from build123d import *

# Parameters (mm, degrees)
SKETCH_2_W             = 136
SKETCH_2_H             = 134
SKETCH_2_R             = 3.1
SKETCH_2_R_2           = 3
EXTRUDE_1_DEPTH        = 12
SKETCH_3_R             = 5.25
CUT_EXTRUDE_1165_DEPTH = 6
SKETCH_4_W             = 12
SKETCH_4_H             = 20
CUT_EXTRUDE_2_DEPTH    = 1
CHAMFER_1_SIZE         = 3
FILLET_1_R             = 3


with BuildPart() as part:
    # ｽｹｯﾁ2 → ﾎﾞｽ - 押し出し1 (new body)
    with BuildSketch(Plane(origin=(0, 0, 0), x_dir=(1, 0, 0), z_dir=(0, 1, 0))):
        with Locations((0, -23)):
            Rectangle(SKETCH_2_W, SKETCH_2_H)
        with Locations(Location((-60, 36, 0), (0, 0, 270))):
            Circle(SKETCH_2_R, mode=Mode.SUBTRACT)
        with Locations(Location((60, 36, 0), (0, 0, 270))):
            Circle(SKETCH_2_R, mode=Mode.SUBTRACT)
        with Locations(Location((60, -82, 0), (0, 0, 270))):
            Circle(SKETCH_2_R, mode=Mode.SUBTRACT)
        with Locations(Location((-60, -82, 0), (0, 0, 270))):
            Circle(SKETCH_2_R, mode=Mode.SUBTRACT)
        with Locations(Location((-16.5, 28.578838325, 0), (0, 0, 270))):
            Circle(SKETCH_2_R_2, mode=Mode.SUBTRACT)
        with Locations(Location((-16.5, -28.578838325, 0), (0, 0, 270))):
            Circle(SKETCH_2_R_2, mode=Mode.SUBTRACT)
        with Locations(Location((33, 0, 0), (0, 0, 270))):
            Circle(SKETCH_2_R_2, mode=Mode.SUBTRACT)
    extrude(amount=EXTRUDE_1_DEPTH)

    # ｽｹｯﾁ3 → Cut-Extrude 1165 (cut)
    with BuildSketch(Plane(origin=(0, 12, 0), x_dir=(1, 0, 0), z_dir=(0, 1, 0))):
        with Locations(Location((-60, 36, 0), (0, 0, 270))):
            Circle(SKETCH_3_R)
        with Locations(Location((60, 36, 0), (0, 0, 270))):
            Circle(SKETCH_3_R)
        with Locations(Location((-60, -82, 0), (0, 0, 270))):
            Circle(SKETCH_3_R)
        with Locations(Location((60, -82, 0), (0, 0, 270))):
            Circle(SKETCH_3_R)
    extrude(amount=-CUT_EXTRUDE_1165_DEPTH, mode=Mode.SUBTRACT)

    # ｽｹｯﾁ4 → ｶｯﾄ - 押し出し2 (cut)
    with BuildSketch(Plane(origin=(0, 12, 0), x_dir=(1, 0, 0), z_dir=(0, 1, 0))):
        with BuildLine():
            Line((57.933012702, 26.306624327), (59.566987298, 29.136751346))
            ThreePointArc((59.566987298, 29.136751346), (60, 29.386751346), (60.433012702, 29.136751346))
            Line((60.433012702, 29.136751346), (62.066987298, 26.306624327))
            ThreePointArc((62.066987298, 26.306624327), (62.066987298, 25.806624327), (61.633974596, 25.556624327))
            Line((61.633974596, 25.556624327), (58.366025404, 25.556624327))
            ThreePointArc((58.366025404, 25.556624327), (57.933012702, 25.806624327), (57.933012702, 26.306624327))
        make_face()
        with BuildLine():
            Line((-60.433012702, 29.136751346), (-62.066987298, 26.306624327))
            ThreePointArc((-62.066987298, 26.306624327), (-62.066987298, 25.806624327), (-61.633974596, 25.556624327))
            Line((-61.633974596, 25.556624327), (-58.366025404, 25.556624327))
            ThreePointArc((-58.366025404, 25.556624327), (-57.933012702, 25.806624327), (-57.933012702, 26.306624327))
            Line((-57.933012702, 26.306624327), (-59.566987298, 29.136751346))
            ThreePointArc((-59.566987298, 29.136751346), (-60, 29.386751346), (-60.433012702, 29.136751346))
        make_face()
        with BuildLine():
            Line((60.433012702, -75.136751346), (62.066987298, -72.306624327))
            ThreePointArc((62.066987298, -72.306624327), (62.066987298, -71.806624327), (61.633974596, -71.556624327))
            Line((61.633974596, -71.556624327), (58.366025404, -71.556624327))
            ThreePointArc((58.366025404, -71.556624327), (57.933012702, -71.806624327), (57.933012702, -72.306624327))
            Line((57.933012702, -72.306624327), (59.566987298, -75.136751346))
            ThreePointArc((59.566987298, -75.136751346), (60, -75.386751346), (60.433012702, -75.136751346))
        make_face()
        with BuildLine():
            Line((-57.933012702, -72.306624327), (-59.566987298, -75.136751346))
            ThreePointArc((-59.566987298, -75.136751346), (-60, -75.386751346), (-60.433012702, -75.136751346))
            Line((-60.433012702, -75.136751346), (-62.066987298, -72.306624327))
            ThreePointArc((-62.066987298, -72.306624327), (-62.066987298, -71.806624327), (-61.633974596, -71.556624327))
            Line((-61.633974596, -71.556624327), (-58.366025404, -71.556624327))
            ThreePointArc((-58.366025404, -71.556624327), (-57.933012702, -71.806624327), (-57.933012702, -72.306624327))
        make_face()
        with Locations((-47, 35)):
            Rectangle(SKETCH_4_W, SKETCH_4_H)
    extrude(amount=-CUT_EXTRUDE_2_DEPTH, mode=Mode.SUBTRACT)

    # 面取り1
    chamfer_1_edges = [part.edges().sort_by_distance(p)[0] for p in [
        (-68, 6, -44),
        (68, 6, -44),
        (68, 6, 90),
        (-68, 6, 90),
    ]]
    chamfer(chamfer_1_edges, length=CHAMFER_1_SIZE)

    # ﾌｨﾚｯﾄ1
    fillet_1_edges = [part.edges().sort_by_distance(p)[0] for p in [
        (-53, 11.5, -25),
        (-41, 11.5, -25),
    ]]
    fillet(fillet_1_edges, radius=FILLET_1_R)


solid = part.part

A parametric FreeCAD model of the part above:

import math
import FreeCAD as App
import Part
import Sketcher
Q = App.Units.Quantity


def edges_at(feature, points):
    """Names of the edges that pass closest to the given points."""
    edges = feature.Shape.Edges
    near = lambda p: min(range(len(edges)), key=lambda i: edges[i].distToShape(Part.Vertex(*p))[0])
    return sorted({f"Edge{near(p) + 1}" for p in points})


def add_polygon(sketch, points):
    """Adds a closed chain of lines whose ends are joined by coincident constraints."""
    first, n = sketch.GeometryCount, len(points)
    for a, b in zip(points, points[1:] + points[:1]):
        sketch.addGeometry(Part.LineSegment(App.Vector(*a, 0), App.Vector(*b, 0)), False)
    for i in range(n):
        sketch.addConstraint(Sketcher.Constraint("Coincident", first + i, 2, first + (i + 1) % n, 1))

doc = App.newDocument("Part")
params = doc.addObject("Spreadsheet::Sheet", "Params")
for row, (alias, value) in enumerate([
    ("sketch1_diameter", "6 mm"),
    ("sketch1_diameter2", "6.2 mm"),
    ("sketch1_width", "136 mm"),
    ("sketch1_height", "134 mm"),
    ("pad1_length", "12 mm"),
    ("sketch2_diameter", "10.5 mm"),
    ("pocket1_length", "6 mm"),
    ("sketch3_radius", "0.5 mm"),
    ("sketch3_width", "12 mm"),
    ("sketch3_height", "20 mm"),
    ("pocket2_length", "1 mm"),
    ("chamfer_size", "3 mm"),
    ("fillet_radius", "3 mm"),
], start=1):
    params.set(f"A{row}", alias)
    params.set(f"B{row}", "=" + value)
    params.setAlias(f"B{row}", alias)

body = doc.addObject("PartDesign::Body", "Body")

# Sketch on XZ plane
sketch1 = body.newObject("Sketcher::SketchObject", "Sketch")
sketch1.AttachmentSupport = (doc.getObject("XZ_Plane"), [""])
sketch1.MapMode = "FlatFace"
add_polygon(sketch1, [(-68, -44), (-68, 90), (68, 90), (68, -44)])  # lines 0-3
sketch1.addGeometry(Part.Circle(App.Vector(-60, 82, 0), App.Vector(0, 0, 1), 3.1), False)  # 4
sketch1.addGeometry(Part.Circle(App.Vector(-16.5, 28.6, 0), App.Vector(0, 0, 1), 3), False)  # 5
sketch1.addGeometry(Part.Circle(App.Vector(60, 82, 0), App.Vector(0, 0, 1), 3.1), False)  # 6
sketch1.addGeometry(Part.Circle(App.Vector(-60, -36, 0), App.Vector(0, 0, 1), 3.1), False)  # 7
sketch1.addGeometry(Part.Circle(App.Vector(-16.5, -28.6, 0), App.Vector(0, 0, 1), 3), False)  # 8
sketch1.addGeometry(Part.Circle(App.Vector(33, 0, 0), App.Vector(0, 0, 1), 3), False)  # 9
sketch1.addGeometry(Part.Circle(App.Vector(60, -36, 0), App.Vector(0, 0, 1), 3.1), False)  # 10
sketch1.addConstraint(Sketcher.Constraint("Vertical", 0))
sketch1.addConstraint(Sketcher.Constraint("Horizontal", 1))
sketch1.addConstraint(Sketcher.Constraint("Vertical", 2))
sketch1.addConstraint(Sketcher.Constraint("Horizontal", 3))
sketch1.addConstraint(Sketcher.Constraint("Equal", 4, 6))
sketch1.addConstraint(Sketcher.Constraint("Equal", 6, 7))
sketch1.addConstraint(Sketcher.Constraint("Equal", 5, 8))
sketch1.addConstraint(Sketcher.Constraint("Equal", 8, 9))
sketch1.addConstraint(Sketcher.Constraint("Equal", 7, 10))
sketch1.addConstraint(Sketcher.Constraint("Symmetric", 4, 3, 6, 3, -2))
sketch1.addConstraint(Sketcher.Constraint("Symmetric", 7, 3, 10, 3, -2))
sketch1.addConstraint(Sketcher.Constraint("Symmetric", 5, 3, 8, 3, -1))
sketch1.addConstraint(Sketcher.Constraint("PointOnObject", 9, 3, -1))
sketch1.addConstraint(Sketcher.Constraint("Vertical", 4, 3, 7, 3))
sketch1.addConstraint(Sketcher.Constraint("Diameter", 5, Q("6 mm")))
sketch1.addConstraint(Sketcher.Constraint("Diameter", 4, Q("6.2 mm")))
sketch1.addConstraint(Sketcher.Constraint("DistanceX", 1, 1, 1, 2, Q("136 mm")))
sketch1.addConstraint(Sketcher.Constraint("DistanceY", 0, 1, 0, 2, Q("134 mm")))
sketch1.addConstraint(Sketcher.Constraint("DistanceX", 4, 3, -1, 1, Q("60 mm")))
sketch1.addConstraint(Sketcher.Constraint("DistanceY", -1, 1, 4, 3, Q("82 mm")))
sketch1.addConstraint(Sketcher.Constraint("DistanceY", 7, 3, -1, 1, Q("36 mm")))
sketch1.addConstraint(Sketcher.Constraint("DistanceX", -1, 1, 9, 3, Q("33 mm")))
sketch1.addConstraint(Sketcher.Constraint("DistanceX", 0, 2, -1, 1, Q("68 mm")))
sketch1.addConstraint(Sketcher.Constraint("DistanceY", -1, 1, 0, 2, Q("90 mm")))
sketch1.addConstraint(Sketcher.Constraint("DistanceX", 5, 3, -1, 1, Q("16.5 mm")))
sketch1.addConstraint(Sketcher.Constraint("DistanceY", -1, 1, 5, 3, Q("28.578838 mm")))
sketch1.setExpression("Constraints[18]", "Params.sketch1_diameter")
sketch1.setExpression("Constraints[19]", "Params.sketch1_diameter2")
sketch1.setExpression("Constraints[20]", "Params.sketch1_width")
sketch1.setExpression("Constraints[21]", "Params.sketch1_height")
pad1 = body.newObject("PartDesign::Pad", "Pad")
pad1.Profile = sketch1
pad1.setExpression("Length", "Params.pad1_length")
pad1.Reversed = True

# Sketch on XZ plane
sketch2 = body.newObject("Sketcher::SketchObject", "Sketch001")
sketch2.AttachmentSupport = (doc.getObject("XZ_Plane"), [""])
sketch2.MapMode = "FlatFace"
sketch2.AttachmentOffset = App.Placement(App.Vector(0, 0, -12), App.Rotation())
sketch2.addGeometry(Part.Circle(App.Vector(-60, -36, 0), App.Vector(0, 0, 1), 5), False)
sketch2.addGeometry(Part.Circle(App.Vector(60, -36, 0), App.Vector(0, 0, 1), 5), False)
sketch2.addGeometry(Part.Circle(App.Vector(-60, 82, 0), App.Vector(0, 0, 1), 5), False)
sketch2.addGeometry(Part.Circle(App.Vector(60, 82, 0), App.Vector(0, 0, 1), 5), False)
sketch2.addConstraint(Sketcher.Constraint("Equal", 0, 1))
sketch2.addConstraint(Sketcher.Constraint("Equal", 1, 2))
sketch2.addConstraint(Sketcher.Constraint("Equal", 2, 3))
sketch2.addConstraint(Sketcher.Constraint("Symmetric", 0, 3, 1, 3, -2))
sketch2.addConstraint(Sketcher.Constraint("Symmetric", 2, 3, 3, 3, -2))
sketch2.addConstraint(Sketcher.Constraint("Vertical", 0, 3, 2, 3))
sketch2.addConstraint(Sketcher.Constraint("Diameter", 0, Q("10.5 mm")))
sketch2.addConstraint(Sketcher.Constraint("DistanceX", 0, 3, -1, 1, Q("60 mm")))
sketch2.addConstraint(Sketcher.Constraint("DistanceY", 0, 3, -1, 1, Q("36 mm")))
sketch2.addConstraint(Sketcher.Constraint("DistanceY", -1, 1, 2, 3, Q("82 mm")))
sketch2.setExpression("Constraints[6]", "Params.sketch2_diameter")
pocket1 = body.newObject("PartDesign::Pocket", "Pocket")
pocket1.Profile = sketch2
pocket1.setExpression("Length", "Params.pocket1_length")
pocket1.Reversed = True

# Sketch on XZ plane
sketch3 = body.newObject("Sketcher::SketchObject", "Sketch002")
sketch3.AttachmentSupport = (doc.getObject("XZ_Plane"), [""])
sketch3.MapMode = "FlatFace"
sketch3.AttachmentOffset = App.Placement(App.Vector(0, 0, -12), App.Rotation())
sketch3.addGeometry(Part.LineSegment(App.Vector(59.6, -29.1, 0), App.Vector(57.9, -26.3, 0)), False)  # 0
sketch3.addGeometry(Part.ArcOfCircle(Part.Circle(App.Vector(58.4, -26.1, 0), App.Vector(0, 0, 1), 0.5), math.radians(90), math.radians(210)), False)  # 1
sketch3.addGeometry(Part.LineSegment(App.Vector(58.4, -25.6, 0), App.Vector(61.6, -25.6, 0)), False)  # 2
sketch3.addGeometry(Part.ArcOfCircle(Part.Circle(App.Vector(61.6, -26.1, 0), App.Vector(0, 0, 1), 0.5), math.radians(-30), math.radians(90)), False)  # 3
sketch3.addGeometry(Part.LineSegment(App.Vector(62.1, -26.3, 0), App.Vector(60.4, -29.1, 0)), False)  # 4
sketch3.addGeometry(Part.ArcOfCircle(Part.Circle(App.Vector(60, -28.9, 0), App.Vector(0, 0, 1), 0.5), math.radians(-150), math.radians(-30)), False)  # 5
sketch3.addGeometry(Part.LineSegment(App.Vector(-60.4, -29.1, 0), App.Vector(-62.1, -26.3, 0)), False)  # 6
sketch3.addGeometry(Part.ArcOfCircle(Part.Circle(App.Vector(-61.6, -26.1, 0), App.Vector(0, 0, 1), 0.5), math.radians(90), math.radians(210)), False)  # 7
sketch3.addGeometry(Part.LineSegment(App.Vector(-61.6, -25.6, 0), App.Vector(-58.4, -25.6, 0)), False)  # 8
sketch3.addGeometry(Part.ArcOfCircle(Part.Circle(App.Vector(-58.4, -26.1, 0), App.Vector(0, 0, 1), 0.5), math.radians(-30), math.radians(90)), False)  # 9
sketch3.addGeometry(Part.LineSegment(App.Vector(-57.9, -26.3, 0), App.Vector(-59.6, -29.1, 0)), False)  # 10
sketch3.addGeometry(Part.ArcOfCircle(Part.Circle(App.Vector(-60, -28.9, 0), App.Vector(0, 0, 1), 0.5), math.radians(-150), math.radians(-30)), False)  # 11
sketch3.addGeometry(Part.LineSegment(App.Vector(60.4, 75.1, 0), App.Vector(62.1, 72.3, 0)), False)  # 12
sketch3.addGeometry(Part.ArcOfCircle(Part.Circle(App.Vector(61.6, 72.1, 0), App.Vector(0, 0, 1), 0.5), math.radians(-90), math.radians(30)), False)  # 13
sketch3.addGeometry(Part.LineSegment(App.Vector(61.6, 71.6, 0), App.Vector(58.4, 71.6, 0)), False)  # 14
sketch3.addGeometry(Part.ArcOfCircle(Part.Circle(App.Vector(58.4, 72.1, 0), App.Vector(0, 0, 1), 0.5), math.radians(150), math.radians(270)), False)  # 15
sketch3.addGeometry(Part.LineSegment(App.Vector(57.9, 72.3, 0), App.Vector(59.6, 75.1, 0)), False)  # 16
sketch3.addGeometry(Part.ArcOfCircle(Part.Circle(App.Vector(60, 74.9, 0), App.Vector(0, 0, 1), 0.5), math.radians(30), math.radians(150)), False)  # 17
sketch3.addGeometry(Part.LineSegment(App.Vector(-59.6, 75.1, 0), App.Vector(-57.9, 72.3, 0)), False)  # 18
sketch3.addGeometry(Part.ArcOfCircle(Part.Circle(App.Vector(-58.4, 72.1, 0), App.Vector(0, 0, 1), 0.5), math.radians(-90), math.radians(30)), False)  # 19
sketch3.addGeometry(Part.LineSegment(App.Vector(-58.4, 71.6, 0), App.Vector(-61.6, 71.6, 0)), False)  # 20
sketch3.addGeometry(Part.ArcOfCircle(Part.Circle(App.Vector(-61.6, 72.1, 0), App.Vector(0, 0, 1), 0.5), math.radians(150), math.radians(270)), False)  # 21
sketch3.addGeometry(Part.LineSegment(App.Vector(-62.1, 72.3, 0), App.Vector(-60.4, 75.1, 0)), False)  # 22
sketch3.addGeometry(Part.ArcOfCircle(Part.Circle(App.Vector(-60, 74.9, 0), App.Vector(0, 0, 1), 0.5), math.radians(30), math.radians(150)), False)  # 23
add_polygon(sketch3, [(-53, -45), (-53, -25), (-41, -25), (-41, -45)])  # lines 24-27
sketch3.addConstraint(Sketcher.Constraint("Tangent", 0, 2, 1, 2))
sketch3.addConstraint(Sketcher.Constraint("Tangent", 1, 1, 2, 1))
sketch3.addConstraint(Sketcher.Constraint("Tangent", 2, 2, 3, 2))
sketch3.addConstraint(Sketcher.Constraint("Tangent", 3, 1, 4, 1))
sketch3.addConstraint(Sketcher.Constraint("Tangent", 4, 2, 5, 2))
sketch3.addConstraint(Sketcher.Constraint("Tangent", 5, 1, 0, 1))
sketch3.addConstraint(Sketcher.Constraint("Tangent", 6, 2, 7, 2))
sketch3.addConstraint(Sketcher.Constraint("Tangent", 7, 1, 8, 1))
sketch3.addConstraint(Sketcher.Constraint("Tangent", 8, 2, 9, 2))
sketch3.addConstraint(Sketcher.Constraint("Tangent", 9, 1, 10, 1))
sketch3.addConstraint(Sketcher.Constraint("Tangent", 10, 2, 11, 2))
sketch3.addConstraint(Sketcher.Constraint("Tangent", 11, 1, 6, 1))
sketch3.addConstraint(Sketcher.Constraint("Tangent", 12, 2, 13, 2))
sketch3.addConstraint(Sketcher.Constraint("Tangent", 13, 1, 14, 1))
sketch3.addConstraint(Sketcher.Constraint("Tangent", 14, 2, 15, 2))
sketch3.addConstraint(Sketcher.Constraint("Tangent", 15, 1, 16, 1))
sketch3.addConstraint(Sketcher.Constraint("Tangent", 16, 2, 17, 2))
sketch3.addConstraint(Sketcher.Constraint("Tangent", 17, 1, 12, 1))
sketch3.addConstraint(Sketcher.Constraint("Tangent", 18, 2, 19, 2))
sketch3.addConstraint(Sketcher.Constraint("Tangent", 19, 1, 20, 1))
sketch3.addConstraint(Sketcher.Constraint("Tangent", 20, 2, 21, 2))
sketch3.addConstraint(Sketcher.Constraint("Tangent", 21, 1, 22, 1))
sketch3.addConstraint(Sketcher.Constraint("Tangent", 22, 2, 23, 2))
sketch3.addConstraint(Sketcher.Constraint("Tangent", 23, 1, 18, 1))
sketch3.addConstraint(Sketcher.Constraint("Horizontal", 2))
sketch3.addConstraint(Sketcher.Constraint("Horizontal", 8))
sketch3.addConstraint(Sketcher.Constraint("Horizontal", 14))
sketch3.addConstraint(Sketcher.Constraint("Horizontal", 20))
sketch3.addConstraint(Sketcher.Constraint("Vertical", 24))
sketch3.addConstraint(Sketcher.Constraint("Horizontal", 25))
sketch3.addConstraint(Sketcher.Constraint("Vertical", 26))
sketch3.addConstraint(Sketcher.Constraint("Horizontal", 27))
sketch3.addConstraint(Sketcher.Constraint("Equal", 1, 3))
sketch3.addConstraint(Sketcher.Constraint("Equal", 3, 5))
sketch3.addConstraint(Sketcher.Constraint("Equal", 5, 7))
sketch3.addConstraint(Sketcher.Constraint("Equal", 7, 9))
sketch3.addConstraint(Sketcher.Constraint("Equal", 9, 11))
sketch3.addConstraint(Sketcher.Constraint("Equal", 11, 13))
sketch3.addConstraint(Sketcher.Constraint("Equal", 13, 15))
sketch3.addConstraint(Sketcher.Constraint("Equal", 15, 17))
sketch3.addConstraint(Sketcher.Constraint("Equal", 17, 19))
sketch3.addConstraint(Sketcher.Constraint("Equal", 19, 21))
sketch3.addConstraint(Sketcher.Constraint("Equal", 21, 23))
sketch3.addConstraint(Sketcher.Constraint("Symmetric", 3, 3, 7, 3, -2))
sketch3.addConstraint(Sketcher.Constraint("Symmetric", 5, 3, 11, 3, -2))
sketch3.addConstraint(Sketcher.Constraint("Symmetric", 15, 3, 19, 3, -2))
sketch3.addConstraint(Sketcher.Constraint("Symmetric", 17, 3, 23, 3, -2))
sketch3.addConstraint(Sketcher.Constraint("Parallel", 0, 6))
sketch3.addConstraint(Sketcher.Constraint("Parallel", 4, 10))
sketch3.addConstraint(Sketcher.Constraint("Parallel", 6, 12))
sketch3.addConstraint(Sketcher.Constraint("Parallel", 10, 16))
sketch3.addConstraint(Sketcher.Constraint("Parallel", 16, 22))
sketch3.addConstraint(Sketcher.Constraint("Vertical", 3, 3, 13, 3))
sketch3.addConstraint(Sketcher.Constraint("Vertical", 1, 3, 15, 3))
sketch3.addConstraint(Sketcher.Constraint("Radius", 1, Q("0.5 mm")))
sketch3.addConstraint(Sketcher.Constraint("DistanceX", 25, 1, 25, 2, Q("12 mm")))
sketch3.addConstraint(Sketcher.Constraint("DistanceY", 24, 1, 24, 2, Q("20 mm")))
sketch3.addConstraint(Sketcher.Constraint("Angle", 0, Q("120 deg")))
sketch3.addConstraint(Sketcher.Constraint("DistanceX", -1, 1, 5, 3, Q("60 mm")))
sketch3.addConstraint(Sketcher.Constraint("DistanceX", 24, 2, -1, 1, Q("53 mm")))
sketch3.addConstraint(Sketcher.Constraint("DistanceY", 24, 2, -1, 1, Q("25 mm")))
sketch3.addConstraint(Sketcher.Constraint("DistanceX", 2, 1, 2, 2, Q("3.267949 mm")))
sketch3.addConstraint(Sketcher.Constraint("DistanceY", 5, 3, -1, 1, Q("28.886751 mm")))
sketch3.addConstraint(Sketcher.Constraint("DistanceY", -1, 1, 17, 3, Q("74.886751 mm")))
sketch3.setExpression("Constraints[58]", "Params.sketch3_radius")
sketch3.setExpression("Constraints[59]", "Params.sketch3_width")
sketch3.setExpression("Constraints[60]", "Params.sketch3_height")
pocket2 = body.newObject("PartDesign::Pocket", "Pocket001")
pocket2.Profile = sketch3
pocket2.setExpression("Length", "Params.pocket2_length")
pocket2.Reversed = True
doc.recompute()

chamfer = body.newObject("PartDesign::Chamfer", "Chamfer")
chamfer.Base = (pocket2, edges_at(pocket2, [
    (-68, 6, -44),
    (68, 6, -44),
    (68, 6, 90),
    (-68, 6, 90),
]))
chamfer.setExpression("Size", "Params.chamfer_size")
doc.recompute()

fillet = body.newObject("PartDesign::Fillet", "Fillet")
fillet.Base = (chamfer, edges_at(chamfer, [(-53, 11.5, -25), (-41, 11.5, -25)]))
fillet.setExpression("Radius", "Params.fillet_radius")

doc.recompute()
